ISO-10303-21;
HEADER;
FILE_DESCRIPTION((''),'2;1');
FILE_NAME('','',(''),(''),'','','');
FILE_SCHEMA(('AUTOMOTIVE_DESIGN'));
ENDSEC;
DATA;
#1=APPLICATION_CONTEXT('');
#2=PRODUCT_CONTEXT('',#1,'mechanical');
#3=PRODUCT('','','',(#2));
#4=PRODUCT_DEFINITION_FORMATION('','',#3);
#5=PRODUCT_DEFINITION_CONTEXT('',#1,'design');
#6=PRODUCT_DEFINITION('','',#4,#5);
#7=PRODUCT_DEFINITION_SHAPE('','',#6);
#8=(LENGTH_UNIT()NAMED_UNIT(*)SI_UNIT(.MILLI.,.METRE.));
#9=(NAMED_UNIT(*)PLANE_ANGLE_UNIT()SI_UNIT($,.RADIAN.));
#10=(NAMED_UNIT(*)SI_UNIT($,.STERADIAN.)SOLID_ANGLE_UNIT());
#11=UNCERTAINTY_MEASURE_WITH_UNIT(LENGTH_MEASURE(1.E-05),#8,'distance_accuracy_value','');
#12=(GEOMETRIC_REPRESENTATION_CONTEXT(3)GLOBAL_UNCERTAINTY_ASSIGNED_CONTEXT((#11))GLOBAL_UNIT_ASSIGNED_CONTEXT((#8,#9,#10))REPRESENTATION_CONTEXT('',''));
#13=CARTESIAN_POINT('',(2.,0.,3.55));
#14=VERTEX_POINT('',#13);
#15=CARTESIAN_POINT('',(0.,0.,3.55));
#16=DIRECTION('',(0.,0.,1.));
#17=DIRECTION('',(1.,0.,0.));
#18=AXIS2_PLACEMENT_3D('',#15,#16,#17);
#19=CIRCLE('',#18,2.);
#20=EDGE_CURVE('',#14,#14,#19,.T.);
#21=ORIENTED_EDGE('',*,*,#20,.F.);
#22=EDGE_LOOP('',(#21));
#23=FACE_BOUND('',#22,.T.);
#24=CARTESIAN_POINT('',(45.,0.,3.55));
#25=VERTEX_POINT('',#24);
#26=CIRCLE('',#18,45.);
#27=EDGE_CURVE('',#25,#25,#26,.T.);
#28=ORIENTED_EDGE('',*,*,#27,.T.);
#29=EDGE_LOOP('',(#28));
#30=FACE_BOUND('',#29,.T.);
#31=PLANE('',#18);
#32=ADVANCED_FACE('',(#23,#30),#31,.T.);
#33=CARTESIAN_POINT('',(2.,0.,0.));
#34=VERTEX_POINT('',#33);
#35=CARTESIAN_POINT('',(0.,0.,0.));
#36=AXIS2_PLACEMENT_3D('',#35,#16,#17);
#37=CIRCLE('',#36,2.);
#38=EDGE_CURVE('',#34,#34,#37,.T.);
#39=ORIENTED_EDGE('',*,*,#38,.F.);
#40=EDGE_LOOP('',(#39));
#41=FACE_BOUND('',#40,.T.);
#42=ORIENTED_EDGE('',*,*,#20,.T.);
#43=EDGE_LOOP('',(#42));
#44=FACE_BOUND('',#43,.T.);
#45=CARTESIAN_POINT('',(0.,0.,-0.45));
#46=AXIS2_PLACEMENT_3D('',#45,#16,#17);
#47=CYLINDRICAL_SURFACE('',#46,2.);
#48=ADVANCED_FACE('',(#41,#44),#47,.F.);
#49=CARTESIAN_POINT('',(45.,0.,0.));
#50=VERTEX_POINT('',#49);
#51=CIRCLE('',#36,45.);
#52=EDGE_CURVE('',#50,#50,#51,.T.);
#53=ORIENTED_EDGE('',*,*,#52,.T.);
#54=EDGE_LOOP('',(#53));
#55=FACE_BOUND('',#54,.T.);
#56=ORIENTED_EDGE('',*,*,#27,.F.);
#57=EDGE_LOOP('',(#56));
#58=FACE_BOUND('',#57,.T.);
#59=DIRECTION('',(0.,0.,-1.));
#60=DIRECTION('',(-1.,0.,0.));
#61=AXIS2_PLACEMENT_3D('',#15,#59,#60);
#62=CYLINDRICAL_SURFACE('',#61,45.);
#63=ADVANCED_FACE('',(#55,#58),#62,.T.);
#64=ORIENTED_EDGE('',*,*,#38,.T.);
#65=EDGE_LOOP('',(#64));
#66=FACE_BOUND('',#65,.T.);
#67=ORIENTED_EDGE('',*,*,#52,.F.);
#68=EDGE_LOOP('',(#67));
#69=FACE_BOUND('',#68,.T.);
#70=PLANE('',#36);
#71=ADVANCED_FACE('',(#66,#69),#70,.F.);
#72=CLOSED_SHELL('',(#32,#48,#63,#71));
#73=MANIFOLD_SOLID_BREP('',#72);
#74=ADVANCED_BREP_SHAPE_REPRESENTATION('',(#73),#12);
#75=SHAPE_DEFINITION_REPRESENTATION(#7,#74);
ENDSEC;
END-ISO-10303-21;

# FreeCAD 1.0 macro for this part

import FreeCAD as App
import Part
import Sketcher
from FreeCAD import Vector
Q = App.Units.Quantity

doc = App.newDocument("Part")
body = doc.addObject("PartDesign::Body", "Body")

# Sketch on XY plane
sketch1 = doc.addObject("Sketcher::SketchObject", "Sketch")
body.addObject(sketch1)
sketch1.AttachmentSupport = (doc.XY_Plane, [""])
sketch1.MapMode = "FlatFace"
sketch1.addGeometry(Part.Circle(Vector(0, 0, 0), Vector(0, 0, 1), 45), False)
sketch1.addConstraint([
    Sketcher.Constraint("Coincident", 0, 3, -1, 1),
    Sketcher.Constraint("Diameter", 0, Q("90 mm")),
])
pad1 = doc.addObject("PartDesign::Pad", "Pad")
body.addObject(pad1)
pad1.Profile = sketch1
pad1.Length = 3.55

# Sketch on XY plane
sketch2 = doc.addObject("Sketcher::SketchObject", "Sketch001")
body.addObject(sketch2)
sketch2.AttachmentSupport = (doc.XY_Plane, [""])
sketch2.MapMode = "FlatFace"
sketch2.AttachmentOffset = App.Placement(Vector(0, 0, 3.55), App.Rotation())
sketch2.addGeometry(Part.Circle(Vector(0, 0, 0), Vector(0, 0, 1), 2), False)
sketch2.addConstraint([
    Sketcher.Constraint("Coincident", 0, 3, -1, 1),
    Sketcher.Constraint("Diameter", 0, Q("4 mm")),
])
pocket1 = doc.addObject("PartDesign::Pocket", "Pocket")
body.addObject(pocket1)
pocket1.Profile = sketch2
pocket1.Length = 4

doc.recompute()
